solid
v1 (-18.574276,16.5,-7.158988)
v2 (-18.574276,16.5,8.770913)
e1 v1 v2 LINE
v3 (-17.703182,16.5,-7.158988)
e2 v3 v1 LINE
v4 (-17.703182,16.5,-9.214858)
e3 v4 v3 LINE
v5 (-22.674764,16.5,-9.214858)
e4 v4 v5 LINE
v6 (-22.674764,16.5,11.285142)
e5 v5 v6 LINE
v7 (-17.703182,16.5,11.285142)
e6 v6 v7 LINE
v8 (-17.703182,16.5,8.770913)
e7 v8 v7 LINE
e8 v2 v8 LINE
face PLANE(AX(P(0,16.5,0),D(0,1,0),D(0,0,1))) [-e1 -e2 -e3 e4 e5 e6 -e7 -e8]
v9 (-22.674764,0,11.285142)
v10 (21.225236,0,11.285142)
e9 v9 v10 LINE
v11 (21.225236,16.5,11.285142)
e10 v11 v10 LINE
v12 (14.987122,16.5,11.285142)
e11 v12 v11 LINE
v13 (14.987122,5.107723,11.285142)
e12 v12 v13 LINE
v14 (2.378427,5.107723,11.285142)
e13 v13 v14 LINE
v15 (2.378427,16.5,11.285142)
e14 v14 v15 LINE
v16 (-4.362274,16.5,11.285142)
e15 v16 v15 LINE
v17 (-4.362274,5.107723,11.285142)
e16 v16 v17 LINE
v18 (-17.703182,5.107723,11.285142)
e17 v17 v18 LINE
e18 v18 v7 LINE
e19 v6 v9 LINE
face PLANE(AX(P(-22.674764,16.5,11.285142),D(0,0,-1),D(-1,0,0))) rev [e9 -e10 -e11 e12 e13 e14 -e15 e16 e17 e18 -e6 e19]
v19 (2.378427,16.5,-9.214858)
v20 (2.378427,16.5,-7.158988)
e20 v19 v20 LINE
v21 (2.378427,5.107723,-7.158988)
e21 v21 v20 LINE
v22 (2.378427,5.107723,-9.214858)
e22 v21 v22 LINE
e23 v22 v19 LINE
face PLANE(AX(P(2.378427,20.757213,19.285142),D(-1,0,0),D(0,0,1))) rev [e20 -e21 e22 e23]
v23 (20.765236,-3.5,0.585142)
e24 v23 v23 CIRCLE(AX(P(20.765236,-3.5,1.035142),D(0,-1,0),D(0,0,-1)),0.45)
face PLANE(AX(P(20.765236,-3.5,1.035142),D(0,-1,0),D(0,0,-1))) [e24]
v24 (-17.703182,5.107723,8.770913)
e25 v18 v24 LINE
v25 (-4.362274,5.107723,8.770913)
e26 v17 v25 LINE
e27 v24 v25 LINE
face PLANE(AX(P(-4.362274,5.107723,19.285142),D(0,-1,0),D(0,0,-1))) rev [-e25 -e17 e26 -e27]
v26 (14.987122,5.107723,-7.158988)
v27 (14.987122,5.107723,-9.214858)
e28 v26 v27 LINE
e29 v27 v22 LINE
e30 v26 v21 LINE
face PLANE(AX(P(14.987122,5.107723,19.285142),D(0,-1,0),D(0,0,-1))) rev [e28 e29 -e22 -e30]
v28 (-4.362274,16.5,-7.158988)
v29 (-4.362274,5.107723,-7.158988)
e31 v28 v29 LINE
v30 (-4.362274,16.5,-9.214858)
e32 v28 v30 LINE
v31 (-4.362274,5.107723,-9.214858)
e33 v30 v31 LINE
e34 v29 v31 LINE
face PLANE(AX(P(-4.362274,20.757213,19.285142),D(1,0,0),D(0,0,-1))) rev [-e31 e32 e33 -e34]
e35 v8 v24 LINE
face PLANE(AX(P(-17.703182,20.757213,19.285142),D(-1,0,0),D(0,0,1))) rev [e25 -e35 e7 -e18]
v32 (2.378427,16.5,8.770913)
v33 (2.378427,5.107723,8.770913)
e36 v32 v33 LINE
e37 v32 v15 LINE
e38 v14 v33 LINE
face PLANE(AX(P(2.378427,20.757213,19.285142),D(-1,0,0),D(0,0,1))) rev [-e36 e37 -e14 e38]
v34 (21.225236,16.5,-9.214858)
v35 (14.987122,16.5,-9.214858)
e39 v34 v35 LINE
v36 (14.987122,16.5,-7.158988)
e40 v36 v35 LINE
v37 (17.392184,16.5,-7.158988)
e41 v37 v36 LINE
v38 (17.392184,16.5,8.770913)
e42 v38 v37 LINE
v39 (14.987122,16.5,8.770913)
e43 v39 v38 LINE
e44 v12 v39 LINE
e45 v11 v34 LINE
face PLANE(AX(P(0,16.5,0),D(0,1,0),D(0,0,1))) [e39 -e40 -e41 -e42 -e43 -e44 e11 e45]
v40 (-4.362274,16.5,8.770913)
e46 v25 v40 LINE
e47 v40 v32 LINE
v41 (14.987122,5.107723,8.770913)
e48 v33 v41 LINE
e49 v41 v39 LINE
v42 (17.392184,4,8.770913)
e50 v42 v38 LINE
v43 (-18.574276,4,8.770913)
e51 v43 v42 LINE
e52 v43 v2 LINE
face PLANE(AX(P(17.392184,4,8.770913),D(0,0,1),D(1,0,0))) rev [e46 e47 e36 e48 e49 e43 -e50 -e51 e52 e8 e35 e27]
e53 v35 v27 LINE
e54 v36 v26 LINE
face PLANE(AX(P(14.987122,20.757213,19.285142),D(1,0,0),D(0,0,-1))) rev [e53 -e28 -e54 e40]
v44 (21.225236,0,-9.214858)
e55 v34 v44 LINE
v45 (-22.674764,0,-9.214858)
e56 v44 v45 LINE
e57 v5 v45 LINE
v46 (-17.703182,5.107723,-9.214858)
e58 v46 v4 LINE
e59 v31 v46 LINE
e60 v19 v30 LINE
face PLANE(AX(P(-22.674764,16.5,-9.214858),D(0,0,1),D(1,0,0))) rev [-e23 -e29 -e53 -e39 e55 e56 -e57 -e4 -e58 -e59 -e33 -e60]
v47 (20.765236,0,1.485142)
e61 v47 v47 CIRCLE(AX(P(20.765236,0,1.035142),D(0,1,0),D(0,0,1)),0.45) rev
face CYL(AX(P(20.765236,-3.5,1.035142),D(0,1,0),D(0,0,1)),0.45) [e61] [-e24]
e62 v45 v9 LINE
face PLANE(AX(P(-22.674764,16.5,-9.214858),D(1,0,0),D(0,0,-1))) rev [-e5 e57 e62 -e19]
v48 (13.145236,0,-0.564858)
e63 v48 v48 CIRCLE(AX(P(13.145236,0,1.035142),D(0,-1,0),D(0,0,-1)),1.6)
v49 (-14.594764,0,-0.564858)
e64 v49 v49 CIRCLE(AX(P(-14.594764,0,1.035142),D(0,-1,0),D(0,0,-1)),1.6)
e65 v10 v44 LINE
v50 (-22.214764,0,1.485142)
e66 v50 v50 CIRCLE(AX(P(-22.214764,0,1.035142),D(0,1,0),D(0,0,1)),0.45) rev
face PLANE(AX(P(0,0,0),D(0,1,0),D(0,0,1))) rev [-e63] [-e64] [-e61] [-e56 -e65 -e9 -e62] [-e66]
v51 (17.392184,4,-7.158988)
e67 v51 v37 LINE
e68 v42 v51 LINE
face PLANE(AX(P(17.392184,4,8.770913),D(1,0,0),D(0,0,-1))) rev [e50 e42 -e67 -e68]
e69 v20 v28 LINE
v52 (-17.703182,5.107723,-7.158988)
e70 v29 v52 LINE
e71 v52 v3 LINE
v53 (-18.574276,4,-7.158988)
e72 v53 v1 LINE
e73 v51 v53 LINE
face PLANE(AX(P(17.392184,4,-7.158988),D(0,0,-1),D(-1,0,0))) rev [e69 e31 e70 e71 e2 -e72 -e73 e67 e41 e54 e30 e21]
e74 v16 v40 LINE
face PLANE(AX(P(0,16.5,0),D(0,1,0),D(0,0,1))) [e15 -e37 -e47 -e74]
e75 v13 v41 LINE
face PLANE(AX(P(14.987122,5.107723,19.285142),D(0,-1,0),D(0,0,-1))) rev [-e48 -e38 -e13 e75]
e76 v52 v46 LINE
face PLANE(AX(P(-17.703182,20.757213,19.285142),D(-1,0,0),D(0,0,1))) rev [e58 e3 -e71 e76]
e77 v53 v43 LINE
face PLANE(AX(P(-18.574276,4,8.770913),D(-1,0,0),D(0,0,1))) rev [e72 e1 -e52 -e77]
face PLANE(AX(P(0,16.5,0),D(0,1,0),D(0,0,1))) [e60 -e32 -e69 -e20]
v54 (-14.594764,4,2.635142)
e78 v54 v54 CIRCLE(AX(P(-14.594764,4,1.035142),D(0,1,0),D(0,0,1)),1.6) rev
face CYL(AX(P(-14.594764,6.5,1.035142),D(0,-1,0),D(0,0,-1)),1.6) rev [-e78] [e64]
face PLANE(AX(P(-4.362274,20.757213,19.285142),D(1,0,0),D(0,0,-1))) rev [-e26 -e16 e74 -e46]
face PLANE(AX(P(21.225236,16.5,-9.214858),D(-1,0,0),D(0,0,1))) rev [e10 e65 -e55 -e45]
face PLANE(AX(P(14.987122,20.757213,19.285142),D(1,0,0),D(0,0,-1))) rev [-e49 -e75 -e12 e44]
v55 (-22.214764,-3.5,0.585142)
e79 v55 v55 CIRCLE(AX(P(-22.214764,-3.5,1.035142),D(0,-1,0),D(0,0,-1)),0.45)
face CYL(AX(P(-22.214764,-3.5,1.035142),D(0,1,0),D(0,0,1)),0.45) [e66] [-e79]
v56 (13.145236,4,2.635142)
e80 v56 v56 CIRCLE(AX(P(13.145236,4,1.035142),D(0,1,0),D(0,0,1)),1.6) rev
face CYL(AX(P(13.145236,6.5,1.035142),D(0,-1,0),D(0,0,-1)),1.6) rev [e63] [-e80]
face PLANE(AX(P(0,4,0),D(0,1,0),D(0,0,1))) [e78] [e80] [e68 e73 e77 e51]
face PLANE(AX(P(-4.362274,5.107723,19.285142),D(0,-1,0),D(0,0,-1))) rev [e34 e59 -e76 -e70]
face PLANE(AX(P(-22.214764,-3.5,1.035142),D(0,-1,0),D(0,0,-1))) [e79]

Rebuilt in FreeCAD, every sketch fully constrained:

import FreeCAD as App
import Part
import Sketcher
from FreeCAD import Vector
Q = App.Units.Quantity

doc = App.newDocument("Part")
body = doc.addObject("PartDesign::Body", "Body")

# Sketch on XZ plane
sketch1 = body.newObject("Sketcher::SketchObject", "Sketch")
sketch1.AttachmentSupport = (doc.getObject("XZ_Plane"), [""])
sketch1.MapMode = "FlatFace"
sketch1.addGeometry(Part.LineSegment(Vector(-23, -9, 0), Vector(-23, 11, 0)), False)
sketch1.addGeometry(Part.LineSegment(Vector(-23, 11, 0), Vector(21, 11, 0)), False)
sketch1.addGeometry(Part.LineSegment(Vector(21, 11, 0), Vector(21, -9, 0)), False)
sketch1.addGeometry(Part.LineSegment(Vector(21, -9, 0), Vector(-23, -9, 0)), False)
sketch1.addConstraint(Sketcher.Constraint("Coincident", 0, 2, 1, 1))
sketch1.addConstraint(Sketcher.Constraint("Coincident", 1, 2, 2, 1))
sketch1.addConstraint(Sketcher.Constraint("Coincident", 2, 2, 3, 1))
sketch1.addConstraint(Sketcher.Constraint("Coincident", 3, 2, 0, 1))
sketch1.addConstraint(Sketcher.Constraint("Vertical", 0))
sketch1.addConstraint(Sketcher.Constraint("Horizontal", 1))
sketch1.addConstraint(Sketcher.Constraint("Vertical", 2))
sketch1.addConstraint(Sketcher.Constraint("Horizontal", 3))
sketch1.addConstraint(Sketcher.Constraint("DistanceX", 1, 1, 1, 2, Q("43.9 mm")))
sketch1.addConstraint(Sketcher.Constraint("DistanceY", 0, 1, 0, 2, Q("20.5 mm")))
sketch1.addConstraint(Sketcher.Constraint("DistanceY", -1, 1, 0, 2, Q("11.285142 mm")))
sketch1.addConstraint(Sketcher.Constraint("DistanceX", 0, 2, -1, 1, Q("22.674764 mm")))
pad1 = body.newObject("PartDesign::Pad", "Pad")
pad1.Profile = sketch1
pad1.Length = 16.5
pad1.Reversed = True

# Sketch on XZ plane
sketch2 = body.newObject("Sketcher::SketchObject", "Sketch001")
sketch2.AttachmentSupport = (doc.getObject("XZ_Plane"), [""])
sketch2.MapMode = "FlatFace"
sketch2.addGeometry(Part.Circle(Vector(13.1, 1, 0), Vector(0, 0, 1), 1.6), False)
sketch2.addGeometry(Part.Circle(Vector(-14.6, 1, 0), Vector(0, 0, 1), 1.6), False)
sketch2.addConstraint(Sketcher.Constraint("Equal", 0, 1))
sketch2.addConstraint(Sketcher.Constraint("Horizontal", 0, 3, 1, 3))
sketch2.addConstraint(Sketcher.Constraint("Diameter", 0, Q("3.2 mm")))
sketch2.addConstraint(Sketcher.Constraint("DistanceX", 1, 3, 0, 3, Q("27.74 mm")))
sketch2.addConstraint(Sketcher.Constraint("DistanceY", -1, 1, 0, 3, Q("1.035142 mm")))
sketch2.addConstraint(Sketcher.Constraint("DistanceX", -1, 1, 0, 3, Q("13.145236 mm")))
pocket1 = body.newObject("PartDesign::Pocket", "Pocket")
pocket1.Profile = sketch2
pocket1.Length = 6.5

# Sketch on XZ plane
sketch3 = body.newObject("Sketcher::SketchObject", "Sketch002")
sketch3.AttachmentSupport = (doc.getObject("XZ_Plane"), [""])
sketch3.MapMode = "FlatFace"
sketch3.AttachmentOffset = App.Placement(Vector(0, 0, -16.5), App.Rotation())
sketch3.addGeometry(Part.LineSegment(Vector(-19, -7, 0), Vector(-19, 9, 0)), False)
sketch3.addGeometry(Part.LineSegment(Vector(-19, 9, 0), Vector(17, 9, 0)), False)
sketch3.addGeometry(Part.LineSegment(Vector(17, 9, 0), Vector(17, -7, 0)), False)
sketch3.addGeometry(Part.LineSegment(Vector(17, -7, 0), Vector(-19, -7, 0)), False)
sketch3.addConstraint(Sketcher.Constraint("Coincident", 0, 2, 1, 1))
sketch3.addConstraint(Sketcher.Constraint("Coincident", 1, 2, 2, 1))
sketch3.addConstraint(Sketcher.Constraint("Coincident", 2, 2, 3, 1))
sketch3.addConstraint(Sketcher.Constraint("Coincident", 3, 2, 0, 1))
sketch3.addConstraint(Sketcher.Constraint("Vertical", 0))
sketch3.addConstraint(Sketcher.Constraint("Horizontal", 1))
sketch3.addConstraint(Sketcher.Constraint("Vertical", 2))
sketch3.addConstraint(Sketcher.Constraint("Horizontal", 3))
sketch3.addConstraint(Sketcher.Constraint("DistanceY", 0, 1, 0, 2, Q("15.929901 mm")))
sketch3.addConstraint(Sketcher.Constraint("DistanceX", 1, 1, 1, 2, Q("35.96646 mm")))
sketch3.addConstraint(Sketcher.Constraint("DistanceX", 0, 2, -1, 1, Q("18.574276 mm")))
sketch3.addConstraint(Sketcher.Constraint("DistanceY", -1, 1, 0, 2, Q("8.770913 mm")))
pocket2 = body.newObject("PartDesign::Pocket", "Pocket001")
pocket2.Profile = sketch3
pocket2.Length = 12.5
pocket2.Reversed = True

# Sketch on XY plane
sketch4 = body.newObject("Sketcher::SketchObject", "Sketch003")
sketch4.AttachmentSupport = (doc.getObject("XY_Plane"), [""])
sketch4.MapMode = "FlatFace"
sketch4.AttachmentOffset = App.Placement(Vector(0, 0, -9.214858), App.Rotation())
sketch4.addGeometry(Part.LineSegment(Vector(15, 21, 0), Vector(15, 5, 0)), False)
sketch4.addGeometry(Part.LineSegment(Vector(15, 5, 0), Vector(2, 5, 0)), False)
sketch4.addGeometry(Part.LineSegment(Vector(2, 5, 0), Vector(2, 21, 0)), False)
sketch4.addGeometry(Part.LineSegment(Vector(2, 21, 0), Vector(15, 21, 0)), False)
sketch4.addGeometry(Part.LineSegment(Vector(-4, 21, 0), Vector(-4, 5, 0)), False)
sketch4.addGeometry(Part.LineSegment(Vector(-4, 5, 0), Vector(-18, 5, 0)), False)
sketch4.addGeometry(Part.LineSegment(Vector(-18, 5, 0), Vector(-18, 21, 0)), False)
sketch4.addGeometry(Part.LineSegment(Vector(-18, 21, 0), Vector(-4, 21, 0)), False)
sketch4.addConstraint(Sketcher.Constraint("Coincident", 0, 2, 1, 1))
sketch4.addConstraint(Sketcher.Constraint("Coincident", 1, 2, 2, 1))
sketch4.addConstraint(Sketcher.Constraint("Coincident", 2, 2, 3, 1))
sketch4.addConstraint(Sketcher.Constraint("Coincident", 3, 2, 0, 1))
sketch4.addConstraint(Sketcher.Constraint("Coincident", 4, 2, 5, 1))
sketch4.addConstraint(Sketcher.Constraint("Coincident", 5, 2, 6, 1))
sketch4.addConstraint(Sketcher.Constraint("Coincident", 6, 2, 7, 1))
sketch4.addConstraint(Sketcher.Constraint("Coincident", 7, 2, 4, 1))
sketch4.addConstraint(Sketcher.Constraint("Vertical", 0))
sketch4.addConstraint(Sketcher.Constraint("Horizontal", 1))
sketch4.addConstraint(Sketcher.Constraint("Vertical", 2))
sketch4.addConstraint(Sketcher.Constraint("Horizontal", 3))
sketch4.addConstraint(Sketcher.Constraint("Vertical", 4))
sketch4.addConstraint(Sketcher.Constraint("Horizontal", 5))
sketch4.addConstraint(Sketcher.Constraint("Vertical", 6))
sketch4.addConstraint(Sketcher.Constraint("Horizontal", 7))
sketch4.addConstraint(Sketcher.Constraint("Horizontal", 1, 2, 4, 2))
sketch4.addConstraint(Sketcher.Constraint("Horizontal", 3, 2, 6, 2))
sketch4.addConstraint(Sketcher.Constraint("DistanceY", 0, 2, 0, 1, Q("15.64949 mm")))
sketch4.addConstraint(Sketcher.Constraint("DistanceX", 4, 2, 1, 2, Q("6.740702 mm")))
sketch4.addConstraint(Sketcher.Constraint("DistanceX", 1, 2, 1, 1, Q("12.608695 mm")))
sketch4.addConstraint(Sketcher.Constraint("DistanceX", 5, 2, 5, 1, Q("13.340908 mm")))
sketch4.addConstraint(Sketcher.Constraint("DistanceX", 5, 2, -1, 1, Q("17.703182 mm")))
sketch4.addConstraint(Sketcher.Constraint("DistanceY", -1, 1, 0, 2, Q("5.107723 mm")))
pocket3 = body.newObject("PartDesign::Pocket", "Pocket002")
pocket3.Profile = sketch4
pocket3.Length = 28.5
pocket3.Reversed = True

# Sketch on XZ plane
sketch5 = body.newObject("Sketcher::SketchObject", "Sketch004")
sketch5.AttachmentSupport = (doc.getObject("XZ_Plane"), [""])
sketch5.MapMode = "FlatFace"
sketch5.addGeometry(Part.Circle(Vector(20.77, 1.04, 0), Vector(0, 0, 1), 0.45), False)
sketch5.addGeometry(Part.Circle(Vector(-22.21, 1.04, 0), Vector(0, 0, 1), 0.45), False)
sketch5.addConstraint(Sketcher.Constraint("Equal", 0, 1))
sketch5.addConstraint(Sketcher.Constraint("Horizontal", 0, 3, 1, 3))
sketch5.addConstraint(Sketcher.Constraint("Diameter", 0, Q("0.9 mm")))
sketch5.addConstraint(Sketcher.Constraint("DistanceX", 1, 3, 0, 3, Q("42.98 mm")))
sketch5.addConstraint(Sketcher.Constraint("DistanceY", -1, 1, 0, 3, Q("1.035142 mm")))
sketch5.addConstraint(Sketcher.Constraint("DistanceX", -1, 1, 0, 3, Q("20.765236 mm")))
pad2 = body.newObject("PartDesign::Pad", "Pad001")
pad2.Profile = sketch5
pad2.Length = 3.5

doc.recompute()
